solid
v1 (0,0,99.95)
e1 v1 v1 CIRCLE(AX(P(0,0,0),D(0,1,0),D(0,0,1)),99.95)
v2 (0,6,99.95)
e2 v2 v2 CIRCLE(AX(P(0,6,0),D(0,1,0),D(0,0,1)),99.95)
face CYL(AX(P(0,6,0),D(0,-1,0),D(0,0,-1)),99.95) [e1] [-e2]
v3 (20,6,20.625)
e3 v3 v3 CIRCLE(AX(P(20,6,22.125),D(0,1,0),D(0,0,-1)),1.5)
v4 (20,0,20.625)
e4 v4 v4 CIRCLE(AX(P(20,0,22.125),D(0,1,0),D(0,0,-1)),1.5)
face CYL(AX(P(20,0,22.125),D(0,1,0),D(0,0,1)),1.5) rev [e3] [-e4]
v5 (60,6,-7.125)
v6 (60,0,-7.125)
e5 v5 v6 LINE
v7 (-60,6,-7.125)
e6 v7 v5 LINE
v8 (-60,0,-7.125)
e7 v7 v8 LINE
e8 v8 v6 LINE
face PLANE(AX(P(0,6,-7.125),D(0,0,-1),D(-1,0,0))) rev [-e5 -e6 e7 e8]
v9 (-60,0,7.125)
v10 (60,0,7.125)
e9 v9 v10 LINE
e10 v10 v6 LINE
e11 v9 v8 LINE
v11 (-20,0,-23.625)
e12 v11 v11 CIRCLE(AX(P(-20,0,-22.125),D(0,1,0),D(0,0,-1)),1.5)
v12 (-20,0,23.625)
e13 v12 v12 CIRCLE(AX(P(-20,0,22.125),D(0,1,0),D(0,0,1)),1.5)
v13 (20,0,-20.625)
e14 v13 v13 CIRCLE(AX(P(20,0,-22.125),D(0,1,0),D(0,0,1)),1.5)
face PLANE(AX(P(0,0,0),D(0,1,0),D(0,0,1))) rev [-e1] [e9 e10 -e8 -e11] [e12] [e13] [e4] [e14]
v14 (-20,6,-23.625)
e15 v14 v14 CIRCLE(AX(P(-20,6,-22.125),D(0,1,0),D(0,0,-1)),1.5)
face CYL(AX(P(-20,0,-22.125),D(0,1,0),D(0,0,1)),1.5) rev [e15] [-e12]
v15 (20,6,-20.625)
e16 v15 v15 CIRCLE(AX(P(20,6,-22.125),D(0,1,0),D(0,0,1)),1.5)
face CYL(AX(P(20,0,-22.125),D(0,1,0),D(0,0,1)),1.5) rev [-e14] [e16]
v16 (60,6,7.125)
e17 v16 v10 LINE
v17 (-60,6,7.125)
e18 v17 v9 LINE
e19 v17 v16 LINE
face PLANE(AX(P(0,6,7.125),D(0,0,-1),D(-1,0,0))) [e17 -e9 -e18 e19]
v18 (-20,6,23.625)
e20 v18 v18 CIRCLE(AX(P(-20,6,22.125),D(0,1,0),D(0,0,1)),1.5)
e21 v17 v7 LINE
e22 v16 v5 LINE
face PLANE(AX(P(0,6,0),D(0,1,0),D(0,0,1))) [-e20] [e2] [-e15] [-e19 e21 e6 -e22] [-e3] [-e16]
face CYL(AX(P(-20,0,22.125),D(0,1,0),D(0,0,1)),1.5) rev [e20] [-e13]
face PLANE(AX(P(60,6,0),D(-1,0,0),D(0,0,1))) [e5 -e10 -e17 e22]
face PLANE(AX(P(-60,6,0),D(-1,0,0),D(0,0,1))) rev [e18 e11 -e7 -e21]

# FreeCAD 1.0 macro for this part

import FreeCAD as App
import Part
import Sketcher

doc = App.newDocument("Part")
body = doc.addObject("PartDesign::Body", "Body")

# Sketch on XZ plane
sketch1 = body.newObject("Sketcher::SketchObject", "Sketch")
sketch1.AttachmentSupport = (doc.getObject("XZ_Plane"), [""])
sketch1.MapMode = "FlatFace"
sketch1.addGeometry([
    Part.Circle(App.Vector(0, 0, 0), App.Vector(0, 0, 1), 100),  # 0
    Part.LineSegment(App.Vector(60, 7, 0), App.Vector(-60, 7, 0)),  # 1
    Part.LineSegment(App.Vector(-60, 7, 0), App.Vector(-60, -7, 0)),  # 2
    Part.LineSegment(App.Vector(-60, -7, 0), App.Vector(60, -7, 0)),  # 3
    Part.LineSegment(App.Vector(60, -7, 0), App.Vector(60, 7, 0)),  # 4
], False)
sketch1.addConstraint([
    Sketcher.Constraint("Coincident", 1, 2, 2, 1),
    Sketcher.Constraint("Coincident", 2, 2, 3, 1),
    Sketcher.Constraint("Coincident", 3, 2, 4, 1),
    Sketcher.Constraint("Coincident", 4, 2, 1, 1),
    Sketcher.Constraint("Horizontal", 1),
    Sketcher.Constraint("Vertical", 2),
    Sketcher.Constraint("Horizontal", 3),
    Sketcher.Constraint("Vertical", 4),
    Sketcher.Constraint("Coincident", 0, 3, -1, 1),
    Sketcher.Constraint("Symmetric", 1, 2, 3, 2, -1, 1),
    Sketcher.Constraint("Diameter", 0, 199.9),
    Sketcher.Constraint("DistanceX", 1, 2, 1, 1, 120.0),
    Sketcher.Constraint("DistanceY", 2, 2, 2, 1, 14.25),
])
pad1 = body.newObject("PartDesign::Pad", "Pad")
pad1.Profile = sketch1
pad1.Length = 6
pad1.Reversed = True

# Sketch on XZ plane
sketch2 = body.newObject("Sketcher::SketchObject", "Sketch001")
sketch2.AttachmentSupport = (doc.getObject("XZ_Plane"), [""])
sketch2.MapMode = "FlatFace"
sketch2.AttachmentOffset = App.Placement(App.Vector(0, 0, -6), App.Rotation())
sketch2.addGeometry([
    Part.Circle(App.Vector(-20, 22.1, 0), App.Vector(0, 0, 1), 1.5),
    Part.Circle(App.Vector(20, 22.1, 0), App.Vector(0, 0, 1), 1.5),
    Part.Circle(App.Vector(20, -22.1, 0), App.Vector(0, 0, 1), 1.5),
    Part.Circle(App.Vector(-20, -22.1, 0), App.Vector(0, 0, 1), 1.5),
], False)
sketch2.addConstraint([
    Sketcher.Constraint("Equal", 0, 1),
    Sketcher.Constraint("Equal", 1, 2),
    Sketcher.Constraint("Equal", 2, 3),
    Sketcher.Constraint("Symmetric", 0, 3, 2, 3, -1, 1),
    Sketcher.Constraint("Symmetric", 1, 3, 3, 3, -1, 1),
    Sketcher.Constraint("Symmetric", 0, 3, 1, 3, -2),
    Sketcher.Constraint("Diameter", 0, 3.0),
    Sketcher.Constraint("DistanceX", 0, 3, -1, 1, 20.0),
    Sketcher.Constraint("DistanceY", 2, 3, 1, 3, 44.25),
])
pocket1 = body.newObject("PartDesign::Pocket", "Pocket")
pocket1.Profile = sketch2
pocket1.Type = "ThroughAll"
pocket1.Reversed = True

doc.recompute()
